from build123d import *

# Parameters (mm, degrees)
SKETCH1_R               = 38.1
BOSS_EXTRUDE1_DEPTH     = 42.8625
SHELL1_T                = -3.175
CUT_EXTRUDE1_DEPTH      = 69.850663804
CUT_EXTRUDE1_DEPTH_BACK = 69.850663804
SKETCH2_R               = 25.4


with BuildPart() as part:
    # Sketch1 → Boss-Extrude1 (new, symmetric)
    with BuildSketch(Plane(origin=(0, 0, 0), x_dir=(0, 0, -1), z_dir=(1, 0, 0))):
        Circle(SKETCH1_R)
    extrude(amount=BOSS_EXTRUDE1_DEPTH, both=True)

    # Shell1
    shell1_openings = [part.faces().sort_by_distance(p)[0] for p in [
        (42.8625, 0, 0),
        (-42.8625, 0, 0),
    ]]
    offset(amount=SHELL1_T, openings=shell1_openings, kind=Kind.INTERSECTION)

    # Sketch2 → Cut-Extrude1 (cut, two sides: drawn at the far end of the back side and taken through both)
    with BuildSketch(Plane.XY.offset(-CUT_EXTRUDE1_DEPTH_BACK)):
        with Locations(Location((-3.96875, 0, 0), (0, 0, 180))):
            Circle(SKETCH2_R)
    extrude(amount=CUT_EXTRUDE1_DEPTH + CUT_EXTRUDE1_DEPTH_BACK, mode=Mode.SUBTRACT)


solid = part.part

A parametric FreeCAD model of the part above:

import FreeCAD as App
import Part
import Sketcher

V = App.Vector
Q = App.Units.Quantity


def faces_at(feature, points):
    """Names of the faces that lie closest to the given points."""
    faces = feature.Shape.Faces
    near = lambda p: min(range(len(faces)), key=lambda i: faces[i].distToShape(Part.Vertex(*p))[0])
    return sorted({f"Face{near(p) + 1}" for p in points})

doc = App.newDocument("Part")
body = doc.addObject("PartDesign::Body", "Body")

# Sketch on YZ plane
sketch1 = doc.addObject("Sketcher::SketchObject", "Sketch")
body.addObject(sketch1)
sketch1.AttachmentSupport = (doc.YZ_Plane, [""])
sketch1.MapMode = "FlatFace"
sketch1.addGeometry(Part.Circle(V(0, 0, 0), V(0, 0, 1), 38), False)
sketch1.addConstraint([
    Sketcher.Constraint("Coincident", 0, 3, -1, 1),
    Sketcher.Constraint("Diameter", 0, Q("3 in")),
])
pad1 = doc.addObject("PartDesign::Pad", "Pad")
body.addObject(pad1)
pad1.Profile = sketch1
pad1.Length = Q("3.375 in")
pad1.Midplane = True
doc.recompute()

thickness = doc.addObject("PartDesign::Thickness", "Thickness")
body.addObject(thickness)
thickness.Base = (pad1, faces_at(pad1, [(42.862, 0, 0), (-42.862, 0, 0)]))
thickness.Value = Q("0.125 in")
thickness.Reversed = True
thickness.Join = "Intersection"

# Sketch on XY plane
sketch2 = doc.addObject("Sketcher::SketchObject", "Sketch001")
body.addObject(sketch2)
sketch2.AttachmentSupport = (doc.XY_Plane, [""])
sketch2.MapMode = "FlatFace"
sketch2.addGeometry(Part.Circle(V(-4, 0, 0), V(0, 0, 1), 25), False)
sketch2.addConstraint([
    Sketcher.Constraint("PointOnObject", 0, 3, -1),
    Sketcher.Constraint("Diameter", 0, Q("2 in")),
    Sketcher.Constraint("DistanceX", 0, 3, -1, 1, Q("0.15625 in")),
])
pocket1 = doc.addObject("PartDesign::Pocket", "Pocket")
body.addObject(pocket1)
pocket1.Profile = sketch2
pocket1.Type = "ThroughAll"
pocket1.Midplane = True

doc.recompute()
